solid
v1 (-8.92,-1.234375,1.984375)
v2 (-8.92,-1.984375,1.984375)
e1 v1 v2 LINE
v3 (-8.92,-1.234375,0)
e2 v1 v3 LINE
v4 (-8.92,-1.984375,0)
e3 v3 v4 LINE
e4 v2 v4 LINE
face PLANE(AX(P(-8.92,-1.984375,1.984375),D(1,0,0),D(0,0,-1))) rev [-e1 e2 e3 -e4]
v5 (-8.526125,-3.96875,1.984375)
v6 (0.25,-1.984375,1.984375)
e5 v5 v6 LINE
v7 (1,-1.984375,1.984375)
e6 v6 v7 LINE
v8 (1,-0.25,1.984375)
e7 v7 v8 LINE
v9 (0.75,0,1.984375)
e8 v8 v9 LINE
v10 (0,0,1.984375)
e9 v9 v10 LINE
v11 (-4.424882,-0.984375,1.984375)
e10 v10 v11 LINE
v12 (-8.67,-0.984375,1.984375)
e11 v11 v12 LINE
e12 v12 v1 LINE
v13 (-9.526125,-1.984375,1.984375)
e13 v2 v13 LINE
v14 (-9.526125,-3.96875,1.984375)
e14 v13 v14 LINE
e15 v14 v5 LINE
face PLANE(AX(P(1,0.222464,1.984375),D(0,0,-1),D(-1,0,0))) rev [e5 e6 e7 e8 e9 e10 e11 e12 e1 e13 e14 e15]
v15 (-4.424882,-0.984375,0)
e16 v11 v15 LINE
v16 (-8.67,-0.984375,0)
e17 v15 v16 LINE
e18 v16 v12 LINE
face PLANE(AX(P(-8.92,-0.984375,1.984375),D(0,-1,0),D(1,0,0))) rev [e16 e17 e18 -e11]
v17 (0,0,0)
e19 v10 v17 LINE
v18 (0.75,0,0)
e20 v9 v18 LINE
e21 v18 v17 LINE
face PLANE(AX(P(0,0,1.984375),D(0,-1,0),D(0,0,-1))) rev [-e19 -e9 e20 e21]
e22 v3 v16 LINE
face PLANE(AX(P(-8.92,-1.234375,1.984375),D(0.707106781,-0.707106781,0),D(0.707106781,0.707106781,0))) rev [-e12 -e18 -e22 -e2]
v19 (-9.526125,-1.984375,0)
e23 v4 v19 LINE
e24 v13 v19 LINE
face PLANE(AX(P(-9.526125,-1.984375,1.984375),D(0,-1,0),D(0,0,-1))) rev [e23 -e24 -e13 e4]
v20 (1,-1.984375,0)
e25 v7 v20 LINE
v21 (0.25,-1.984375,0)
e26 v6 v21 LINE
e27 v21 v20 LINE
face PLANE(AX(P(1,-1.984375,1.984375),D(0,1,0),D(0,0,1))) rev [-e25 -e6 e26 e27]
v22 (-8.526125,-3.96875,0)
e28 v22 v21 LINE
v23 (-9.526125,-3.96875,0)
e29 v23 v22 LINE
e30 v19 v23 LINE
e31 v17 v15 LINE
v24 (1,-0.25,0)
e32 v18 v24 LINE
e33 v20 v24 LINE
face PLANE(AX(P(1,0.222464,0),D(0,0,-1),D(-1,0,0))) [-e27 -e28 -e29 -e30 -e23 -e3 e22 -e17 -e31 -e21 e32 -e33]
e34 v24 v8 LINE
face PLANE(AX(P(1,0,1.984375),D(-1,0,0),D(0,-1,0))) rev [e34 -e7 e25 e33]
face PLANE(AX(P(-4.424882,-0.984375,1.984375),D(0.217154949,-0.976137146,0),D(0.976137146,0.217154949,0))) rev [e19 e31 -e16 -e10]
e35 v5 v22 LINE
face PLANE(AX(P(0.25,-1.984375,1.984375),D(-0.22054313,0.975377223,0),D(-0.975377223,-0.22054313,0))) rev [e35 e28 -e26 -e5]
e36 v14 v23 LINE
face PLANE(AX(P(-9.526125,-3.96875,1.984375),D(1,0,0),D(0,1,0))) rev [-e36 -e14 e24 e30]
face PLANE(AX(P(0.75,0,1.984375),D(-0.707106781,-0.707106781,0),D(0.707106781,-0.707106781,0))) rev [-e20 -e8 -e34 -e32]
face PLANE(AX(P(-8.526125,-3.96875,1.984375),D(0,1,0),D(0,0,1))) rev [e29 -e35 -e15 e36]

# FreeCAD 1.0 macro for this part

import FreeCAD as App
import Part
import Sketcher
from FreeCAD import Vector


def edges_at(feature, points):
    """Names of the edges that pass closest to the given points."""
    edges = feature.Shape.Edges
    near = lambda p: min(range(len(edges)), key=lambda i: edges[i].distToShape(Part.Vertex(*p))[0])
    return sorted({f"Edge{near(p) + 1}" for p in points})


def add_polygon(sketch, points):
    """Adds a closed chain of lines whose ends are joined by coincident constraints."""
    first, n = sketch.GeometryCount, len(points)
    for a, b in zip(points, points[1:] + points[:1]):
        sketch.addGeometry(Part.LineSegment(App.Vector(*a, 0), App.Vector(*b, 0)), False)
    for i in range(n):
        sketch.addConstraint(Sketcher.Constraint("Coincident", first + i, 2, first + (i + 1) % n, 1))

doc = App.newDocument("Part")
body = doc.addObject("PartDesign::Body", "Body")

# Sketch on XY plane
sketch1 = doc.addObject("Sketcher::SketchObject", "Sketch")
body.addObject(sketch1)
sketch1.AttachmentSupport = (doc.XY_Plane, [""])
sketch1.MapMode = "FlatFace"
add_polygon(sketch1, [(1, 0), (0, 0), (-4.4, -1), (-8.9, -1), (-8.9, -2), (-9.5, -2), (-9.5, -4), (-8.5, -4), (0.2, -2), (1, -2)])  # lines 0-9
sketch1.addConstraint([
    Sketcher.Constraint("Horizontal", 0),
    Sketcher.Constraint("Horizontal", 2),
    Sketcher.Constraint("Vertical", 3),
    Sketcher.Constraint("Horizontal", 4),
    Sketcher.Constraint("Vertical", 5),
    Sketcher.Constraint("Horizontal", 6),
    Sketcher.Constraint("Horizontal", 8),
    Sketcher.Constraint("Vertical", 9),
    Sketcher.Constraint("Coincident", 0, 2, -1, 1),
    Sketcher.Constraint("Horizontal", 4, 2, 7, 2),
    Sketcher.Constraint("Equal", 0, 6),
    Sketcher.Constraint("Equal", 6, 3),
    Sketcher.Constraint("Equal", 5, 9),
    Sketcher.Constraint("DistanceX", 0, 2, 0, 1, 1.0),
    Sketcher.Constraint("DistanceX", 8, 1, 8, 2, 0.75),
    Sketcher.Constraint("DistanceX", 2, 2, -1, 1, 8.92),
    Sketcher.Constraint("DistanceX", 2, 2, 2, 1, 4.495118),
    Sketcher.Constraint("DistanceX", 4, 2, 4, 1, 0.606125),
    Sketcher.Constraint("DistanceY", 5, 2, 5, 1, 1.984375),
])
pad1 = doc.addObject("PartDesign::Pad", "Pad")
body.addObject(pad1)
pad1.Profile = sketch1
pad1.Length = 1.984375
doc.recompute()

chamfer = doc.addObject("PartDesign::Chamfer", "Chamfer")
body.addObject(chamfer)
chamfer.Base = (pad1, edges_at(pad1, [(1, 0, 0.992), (-8.92, -0.984, 0.992)]))
chamfer.Size = 0.25

doc.recompute()
